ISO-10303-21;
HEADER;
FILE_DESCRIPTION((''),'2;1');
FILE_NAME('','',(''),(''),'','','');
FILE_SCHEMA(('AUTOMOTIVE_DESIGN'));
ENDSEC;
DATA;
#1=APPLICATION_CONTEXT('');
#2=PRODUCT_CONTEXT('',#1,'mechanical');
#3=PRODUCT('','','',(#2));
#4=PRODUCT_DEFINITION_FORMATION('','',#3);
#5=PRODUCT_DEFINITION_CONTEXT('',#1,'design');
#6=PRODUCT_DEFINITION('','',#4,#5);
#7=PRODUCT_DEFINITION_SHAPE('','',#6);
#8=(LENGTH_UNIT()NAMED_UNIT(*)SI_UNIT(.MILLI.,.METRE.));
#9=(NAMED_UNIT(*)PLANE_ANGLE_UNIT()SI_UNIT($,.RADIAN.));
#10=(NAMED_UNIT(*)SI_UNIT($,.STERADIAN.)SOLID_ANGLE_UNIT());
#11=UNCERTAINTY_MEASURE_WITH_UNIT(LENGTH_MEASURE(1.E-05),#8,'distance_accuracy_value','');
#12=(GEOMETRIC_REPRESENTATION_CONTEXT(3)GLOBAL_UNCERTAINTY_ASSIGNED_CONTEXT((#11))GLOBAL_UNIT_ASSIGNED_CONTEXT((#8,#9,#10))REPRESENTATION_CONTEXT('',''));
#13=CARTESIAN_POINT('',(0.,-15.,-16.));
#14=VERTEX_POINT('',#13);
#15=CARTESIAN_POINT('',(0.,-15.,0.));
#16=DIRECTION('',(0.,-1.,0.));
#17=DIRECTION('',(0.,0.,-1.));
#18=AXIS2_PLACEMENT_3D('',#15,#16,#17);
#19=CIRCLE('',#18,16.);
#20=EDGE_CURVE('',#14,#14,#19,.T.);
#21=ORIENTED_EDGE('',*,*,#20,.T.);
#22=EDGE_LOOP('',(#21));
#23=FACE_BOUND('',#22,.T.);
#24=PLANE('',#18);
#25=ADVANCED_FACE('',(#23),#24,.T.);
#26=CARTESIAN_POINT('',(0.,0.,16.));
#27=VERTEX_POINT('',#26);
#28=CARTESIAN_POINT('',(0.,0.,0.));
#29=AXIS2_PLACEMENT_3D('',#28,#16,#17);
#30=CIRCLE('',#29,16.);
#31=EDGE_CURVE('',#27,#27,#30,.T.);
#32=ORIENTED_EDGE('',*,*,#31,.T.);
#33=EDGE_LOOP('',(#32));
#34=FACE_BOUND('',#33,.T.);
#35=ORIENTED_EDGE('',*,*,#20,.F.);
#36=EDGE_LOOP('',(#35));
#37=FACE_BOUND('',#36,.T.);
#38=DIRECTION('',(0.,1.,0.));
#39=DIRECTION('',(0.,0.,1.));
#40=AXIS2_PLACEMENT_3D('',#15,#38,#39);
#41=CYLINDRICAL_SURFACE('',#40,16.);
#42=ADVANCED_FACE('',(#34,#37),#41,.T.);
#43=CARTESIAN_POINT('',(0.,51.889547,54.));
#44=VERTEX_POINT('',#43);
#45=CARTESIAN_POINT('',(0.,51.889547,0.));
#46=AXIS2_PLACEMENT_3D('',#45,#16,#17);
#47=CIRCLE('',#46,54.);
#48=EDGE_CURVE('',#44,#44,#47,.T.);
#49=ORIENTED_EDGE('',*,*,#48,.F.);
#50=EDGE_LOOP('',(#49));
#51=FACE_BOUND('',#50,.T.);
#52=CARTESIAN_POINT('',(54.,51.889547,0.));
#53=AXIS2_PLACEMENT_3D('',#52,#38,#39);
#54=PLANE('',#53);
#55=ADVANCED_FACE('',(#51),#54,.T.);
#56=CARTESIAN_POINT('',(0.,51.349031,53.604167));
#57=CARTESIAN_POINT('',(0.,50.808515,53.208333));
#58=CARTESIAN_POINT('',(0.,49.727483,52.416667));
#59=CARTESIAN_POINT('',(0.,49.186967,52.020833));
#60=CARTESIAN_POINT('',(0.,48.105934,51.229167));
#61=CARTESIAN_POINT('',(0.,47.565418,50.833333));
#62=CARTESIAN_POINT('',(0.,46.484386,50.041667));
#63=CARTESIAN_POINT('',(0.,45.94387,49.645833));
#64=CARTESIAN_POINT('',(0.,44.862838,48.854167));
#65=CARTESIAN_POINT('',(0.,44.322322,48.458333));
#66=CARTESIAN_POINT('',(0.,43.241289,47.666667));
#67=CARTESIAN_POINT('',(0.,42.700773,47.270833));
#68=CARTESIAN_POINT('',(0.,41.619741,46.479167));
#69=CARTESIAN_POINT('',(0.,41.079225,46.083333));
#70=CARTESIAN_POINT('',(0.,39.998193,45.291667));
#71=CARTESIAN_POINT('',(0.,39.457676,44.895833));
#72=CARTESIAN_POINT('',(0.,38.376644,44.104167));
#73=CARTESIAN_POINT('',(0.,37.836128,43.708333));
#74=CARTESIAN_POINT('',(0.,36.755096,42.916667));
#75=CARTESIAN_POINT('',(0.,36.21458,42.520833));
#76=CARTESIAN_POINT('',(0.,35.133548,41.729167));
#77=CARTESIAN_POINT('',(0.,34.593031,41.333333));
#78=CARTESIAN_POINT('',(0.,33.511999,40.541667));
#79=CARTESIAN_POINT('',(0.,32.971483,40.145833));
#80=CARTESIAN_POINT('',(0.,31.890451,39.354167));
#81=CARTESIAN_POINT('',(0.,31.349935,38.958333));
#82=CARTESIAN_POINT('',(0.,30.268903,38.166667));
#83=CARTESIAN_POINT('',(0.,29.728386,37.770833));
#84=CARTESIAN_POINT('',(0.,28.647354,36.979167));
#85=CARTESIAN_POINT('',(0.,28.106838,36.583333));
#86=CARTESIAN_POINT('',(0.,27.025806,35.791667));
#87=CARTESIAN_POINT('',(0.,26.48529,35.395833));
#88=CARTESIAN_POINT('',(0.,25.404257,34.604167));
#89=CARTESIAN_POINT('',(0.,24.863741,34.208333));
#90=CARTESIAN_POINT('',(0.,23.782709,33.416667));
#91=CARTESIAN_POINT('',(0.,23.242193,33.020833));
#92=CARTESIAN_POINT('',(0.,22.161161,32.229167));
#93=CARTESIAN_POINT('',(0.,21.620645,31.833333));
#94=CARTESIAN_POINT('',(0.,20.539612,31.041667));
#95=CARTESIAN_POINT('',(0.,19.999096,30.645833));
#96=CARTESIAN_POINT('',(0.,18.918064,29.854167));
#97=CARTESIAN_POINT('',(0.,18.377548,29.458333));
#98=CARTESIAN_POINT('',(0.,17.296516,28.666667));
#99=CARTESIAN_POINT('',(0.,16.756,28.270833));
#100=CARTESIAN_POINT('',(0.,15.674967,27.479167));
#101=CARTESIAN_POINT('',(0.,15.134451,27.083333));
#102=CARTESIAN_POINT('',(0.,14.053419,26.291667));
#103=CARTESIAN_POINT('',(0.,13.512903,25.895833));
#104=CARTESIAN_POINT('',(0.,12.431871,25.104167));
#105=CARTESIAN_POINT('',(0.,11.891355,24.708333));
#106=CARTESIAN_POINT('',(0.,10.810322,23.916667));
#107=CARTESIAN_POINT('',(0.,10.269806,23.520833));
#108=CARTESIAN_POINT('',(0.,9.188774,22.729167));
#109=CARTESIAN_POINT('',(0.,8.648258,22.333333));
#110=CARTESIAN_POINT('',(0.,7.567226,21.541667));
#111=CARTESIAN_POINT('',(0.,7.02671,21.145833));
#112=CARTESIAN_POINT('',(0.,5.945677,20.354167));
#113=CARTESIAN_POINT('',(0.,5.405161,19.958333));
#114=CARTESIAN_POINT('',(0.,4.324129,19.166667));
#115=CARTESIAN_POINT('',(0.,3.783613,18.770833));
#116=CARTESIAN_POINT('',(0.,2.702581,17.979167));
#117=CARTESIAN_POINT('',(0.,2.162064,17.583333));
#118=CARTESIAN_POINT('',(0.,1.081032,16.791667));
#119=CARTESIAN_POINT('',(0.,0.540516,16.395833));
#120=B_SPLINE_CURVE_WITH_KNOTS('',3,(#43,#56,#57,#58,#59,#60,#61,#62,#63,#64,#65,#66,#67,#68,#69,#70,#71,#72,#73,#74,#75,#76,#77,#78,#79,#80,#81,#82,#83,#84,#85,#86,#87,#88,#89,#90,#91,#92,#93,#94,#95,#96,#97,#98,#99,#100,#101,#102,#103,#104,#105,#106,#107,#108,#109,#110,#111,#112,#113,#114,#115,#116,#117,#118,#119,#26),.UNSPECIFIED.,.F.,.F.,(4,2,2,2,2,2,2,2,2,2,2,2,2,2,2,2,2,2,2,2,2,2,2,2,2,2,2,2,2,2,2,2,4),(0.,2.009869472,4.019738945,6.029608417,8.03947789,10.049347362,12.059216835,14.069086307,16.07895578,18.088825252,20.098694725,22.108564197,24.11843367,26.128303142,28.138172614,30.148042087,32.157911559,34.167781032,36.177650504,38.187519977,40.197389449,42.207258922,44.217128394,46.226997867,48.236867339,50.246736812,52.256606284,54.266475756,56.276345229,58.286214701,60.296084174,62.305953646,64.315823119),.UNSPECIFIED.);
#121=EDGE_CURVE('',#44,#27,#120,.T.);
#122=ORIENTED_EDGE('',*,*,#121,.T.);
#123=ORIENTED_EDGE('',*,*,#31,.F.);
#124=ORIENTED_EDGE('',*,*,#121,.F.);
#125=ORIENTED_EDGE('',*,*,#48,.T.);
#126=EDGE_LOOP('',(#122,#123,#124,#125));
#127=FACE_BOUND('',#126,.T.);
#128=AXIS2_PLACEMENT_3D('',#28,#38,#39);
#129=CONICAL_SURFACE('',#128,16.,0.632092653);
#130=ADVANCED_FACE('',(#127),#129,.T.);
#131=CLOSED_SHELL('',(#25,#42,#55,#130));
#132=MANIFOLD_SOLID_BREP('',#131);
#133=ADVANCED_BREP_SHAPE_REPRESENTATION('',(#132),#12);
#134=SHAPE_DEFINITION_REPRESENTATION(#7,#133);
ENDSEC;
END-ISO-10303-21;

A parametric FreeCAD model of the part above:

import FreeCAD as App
import Part
import Sketcher
from FreeCAD import Vector
Q = App.Units.Quantity

doc = App.newDocument("Part")
body = doc.addObject("PartDesign::Body", "Body")

# Sketch on XY plane
sketch1 = body.newObject("Sketcher::SketchObject", "Sketch")
sketch1.AttachmentSupport = (doc.getObject("XY_Plane"), [""])
sketch1.MapMode = "FlatFace"
sketch1.addGeometry(Part.LineSegment(Vector(0, 0, 0), Vector(16, 0, 0)), False)
sketch1.addGeometry(Part.LineSegment(Vector(16, 0, 0), Vector(54, 52, 0)), False)
sketch1.addGeometry(Part.LineSegment(Vector(54, 52, 0), Vector(0, 52, 0)), False)
sketch1.addGeometry(Part.LineSegment(Vector(0, 52, 0), Vector(0, 0, 0)), False)
sketch1.addConstraint(Sketcher.Constraint("Coincident", 0, 2, 1, 1))
sketch1.addConstraint(Sketcher.Constraint("Coincident", 1, 2, 2, 1))
sketch1.addConstraint(Sketcher.Constraint("Coincident", 2, 2, 3, 1))
sketch1.addConstraint(Sketcher.Constraint("Coincident", 3, 2, 0, 1))
sketch1.addConstraint(Sketcher.Constraint("Horizontal", 0))
sketch1.addConstraint(Sketcher.Constraint("Horizontal", 2))
sketch1.addConstraint(Sketcher.Constraint("Vertical", 3))
sketch1.addConstraint(Sketcher.Constraint("Coincident", 3, 2, -1, 1))
sketch1.addConstraint(Sketcher.Constraint("DistanceX", 0, 1, 0, 2, Q("16 mm")))
sketch1.addConstraint(Sketcher.Constraint("DistanceX", 2, 2, 2, 1, Q("54 mm")))
sketch1.addConstraint(Sketcher.Constraint("DistanceY", 3, 2, 3, 1, Q("51.889547 mm")))
revolution = body.newObject("PartDesign::Revolution", "Revolution")
revolution.Profile = sketch1
revolution.ReferenceAxis = (sketch1, ["V_Axis"])
revolution.Angle = 360

# Sketch on XZ plane
sketch2 = body.newObject("Sketcher::SketchObject", "Sketch001")
sketch2.AttachmentSupport = (doc.getObject("XZ_Plane"), [""])
sketch2.MapMode = "FlatFace"
sketch2.addGeometry(Part.Circle(Vector(0, 0, 0), Vector(0, 0, 1), 16), False)
sketch2.addConstraint(Sketcher.Constraint("Coincident", 0, 3, -1, 1))
sketch2.addConstraint(Sketcher.Constraint("Diameter", 0, Q("32 mm")))
pad1 = body.newObject("PartDesign::Pad", "Pad")
pad1.Profile = sketch2
pad1.Length = 15

doc.recompute()
